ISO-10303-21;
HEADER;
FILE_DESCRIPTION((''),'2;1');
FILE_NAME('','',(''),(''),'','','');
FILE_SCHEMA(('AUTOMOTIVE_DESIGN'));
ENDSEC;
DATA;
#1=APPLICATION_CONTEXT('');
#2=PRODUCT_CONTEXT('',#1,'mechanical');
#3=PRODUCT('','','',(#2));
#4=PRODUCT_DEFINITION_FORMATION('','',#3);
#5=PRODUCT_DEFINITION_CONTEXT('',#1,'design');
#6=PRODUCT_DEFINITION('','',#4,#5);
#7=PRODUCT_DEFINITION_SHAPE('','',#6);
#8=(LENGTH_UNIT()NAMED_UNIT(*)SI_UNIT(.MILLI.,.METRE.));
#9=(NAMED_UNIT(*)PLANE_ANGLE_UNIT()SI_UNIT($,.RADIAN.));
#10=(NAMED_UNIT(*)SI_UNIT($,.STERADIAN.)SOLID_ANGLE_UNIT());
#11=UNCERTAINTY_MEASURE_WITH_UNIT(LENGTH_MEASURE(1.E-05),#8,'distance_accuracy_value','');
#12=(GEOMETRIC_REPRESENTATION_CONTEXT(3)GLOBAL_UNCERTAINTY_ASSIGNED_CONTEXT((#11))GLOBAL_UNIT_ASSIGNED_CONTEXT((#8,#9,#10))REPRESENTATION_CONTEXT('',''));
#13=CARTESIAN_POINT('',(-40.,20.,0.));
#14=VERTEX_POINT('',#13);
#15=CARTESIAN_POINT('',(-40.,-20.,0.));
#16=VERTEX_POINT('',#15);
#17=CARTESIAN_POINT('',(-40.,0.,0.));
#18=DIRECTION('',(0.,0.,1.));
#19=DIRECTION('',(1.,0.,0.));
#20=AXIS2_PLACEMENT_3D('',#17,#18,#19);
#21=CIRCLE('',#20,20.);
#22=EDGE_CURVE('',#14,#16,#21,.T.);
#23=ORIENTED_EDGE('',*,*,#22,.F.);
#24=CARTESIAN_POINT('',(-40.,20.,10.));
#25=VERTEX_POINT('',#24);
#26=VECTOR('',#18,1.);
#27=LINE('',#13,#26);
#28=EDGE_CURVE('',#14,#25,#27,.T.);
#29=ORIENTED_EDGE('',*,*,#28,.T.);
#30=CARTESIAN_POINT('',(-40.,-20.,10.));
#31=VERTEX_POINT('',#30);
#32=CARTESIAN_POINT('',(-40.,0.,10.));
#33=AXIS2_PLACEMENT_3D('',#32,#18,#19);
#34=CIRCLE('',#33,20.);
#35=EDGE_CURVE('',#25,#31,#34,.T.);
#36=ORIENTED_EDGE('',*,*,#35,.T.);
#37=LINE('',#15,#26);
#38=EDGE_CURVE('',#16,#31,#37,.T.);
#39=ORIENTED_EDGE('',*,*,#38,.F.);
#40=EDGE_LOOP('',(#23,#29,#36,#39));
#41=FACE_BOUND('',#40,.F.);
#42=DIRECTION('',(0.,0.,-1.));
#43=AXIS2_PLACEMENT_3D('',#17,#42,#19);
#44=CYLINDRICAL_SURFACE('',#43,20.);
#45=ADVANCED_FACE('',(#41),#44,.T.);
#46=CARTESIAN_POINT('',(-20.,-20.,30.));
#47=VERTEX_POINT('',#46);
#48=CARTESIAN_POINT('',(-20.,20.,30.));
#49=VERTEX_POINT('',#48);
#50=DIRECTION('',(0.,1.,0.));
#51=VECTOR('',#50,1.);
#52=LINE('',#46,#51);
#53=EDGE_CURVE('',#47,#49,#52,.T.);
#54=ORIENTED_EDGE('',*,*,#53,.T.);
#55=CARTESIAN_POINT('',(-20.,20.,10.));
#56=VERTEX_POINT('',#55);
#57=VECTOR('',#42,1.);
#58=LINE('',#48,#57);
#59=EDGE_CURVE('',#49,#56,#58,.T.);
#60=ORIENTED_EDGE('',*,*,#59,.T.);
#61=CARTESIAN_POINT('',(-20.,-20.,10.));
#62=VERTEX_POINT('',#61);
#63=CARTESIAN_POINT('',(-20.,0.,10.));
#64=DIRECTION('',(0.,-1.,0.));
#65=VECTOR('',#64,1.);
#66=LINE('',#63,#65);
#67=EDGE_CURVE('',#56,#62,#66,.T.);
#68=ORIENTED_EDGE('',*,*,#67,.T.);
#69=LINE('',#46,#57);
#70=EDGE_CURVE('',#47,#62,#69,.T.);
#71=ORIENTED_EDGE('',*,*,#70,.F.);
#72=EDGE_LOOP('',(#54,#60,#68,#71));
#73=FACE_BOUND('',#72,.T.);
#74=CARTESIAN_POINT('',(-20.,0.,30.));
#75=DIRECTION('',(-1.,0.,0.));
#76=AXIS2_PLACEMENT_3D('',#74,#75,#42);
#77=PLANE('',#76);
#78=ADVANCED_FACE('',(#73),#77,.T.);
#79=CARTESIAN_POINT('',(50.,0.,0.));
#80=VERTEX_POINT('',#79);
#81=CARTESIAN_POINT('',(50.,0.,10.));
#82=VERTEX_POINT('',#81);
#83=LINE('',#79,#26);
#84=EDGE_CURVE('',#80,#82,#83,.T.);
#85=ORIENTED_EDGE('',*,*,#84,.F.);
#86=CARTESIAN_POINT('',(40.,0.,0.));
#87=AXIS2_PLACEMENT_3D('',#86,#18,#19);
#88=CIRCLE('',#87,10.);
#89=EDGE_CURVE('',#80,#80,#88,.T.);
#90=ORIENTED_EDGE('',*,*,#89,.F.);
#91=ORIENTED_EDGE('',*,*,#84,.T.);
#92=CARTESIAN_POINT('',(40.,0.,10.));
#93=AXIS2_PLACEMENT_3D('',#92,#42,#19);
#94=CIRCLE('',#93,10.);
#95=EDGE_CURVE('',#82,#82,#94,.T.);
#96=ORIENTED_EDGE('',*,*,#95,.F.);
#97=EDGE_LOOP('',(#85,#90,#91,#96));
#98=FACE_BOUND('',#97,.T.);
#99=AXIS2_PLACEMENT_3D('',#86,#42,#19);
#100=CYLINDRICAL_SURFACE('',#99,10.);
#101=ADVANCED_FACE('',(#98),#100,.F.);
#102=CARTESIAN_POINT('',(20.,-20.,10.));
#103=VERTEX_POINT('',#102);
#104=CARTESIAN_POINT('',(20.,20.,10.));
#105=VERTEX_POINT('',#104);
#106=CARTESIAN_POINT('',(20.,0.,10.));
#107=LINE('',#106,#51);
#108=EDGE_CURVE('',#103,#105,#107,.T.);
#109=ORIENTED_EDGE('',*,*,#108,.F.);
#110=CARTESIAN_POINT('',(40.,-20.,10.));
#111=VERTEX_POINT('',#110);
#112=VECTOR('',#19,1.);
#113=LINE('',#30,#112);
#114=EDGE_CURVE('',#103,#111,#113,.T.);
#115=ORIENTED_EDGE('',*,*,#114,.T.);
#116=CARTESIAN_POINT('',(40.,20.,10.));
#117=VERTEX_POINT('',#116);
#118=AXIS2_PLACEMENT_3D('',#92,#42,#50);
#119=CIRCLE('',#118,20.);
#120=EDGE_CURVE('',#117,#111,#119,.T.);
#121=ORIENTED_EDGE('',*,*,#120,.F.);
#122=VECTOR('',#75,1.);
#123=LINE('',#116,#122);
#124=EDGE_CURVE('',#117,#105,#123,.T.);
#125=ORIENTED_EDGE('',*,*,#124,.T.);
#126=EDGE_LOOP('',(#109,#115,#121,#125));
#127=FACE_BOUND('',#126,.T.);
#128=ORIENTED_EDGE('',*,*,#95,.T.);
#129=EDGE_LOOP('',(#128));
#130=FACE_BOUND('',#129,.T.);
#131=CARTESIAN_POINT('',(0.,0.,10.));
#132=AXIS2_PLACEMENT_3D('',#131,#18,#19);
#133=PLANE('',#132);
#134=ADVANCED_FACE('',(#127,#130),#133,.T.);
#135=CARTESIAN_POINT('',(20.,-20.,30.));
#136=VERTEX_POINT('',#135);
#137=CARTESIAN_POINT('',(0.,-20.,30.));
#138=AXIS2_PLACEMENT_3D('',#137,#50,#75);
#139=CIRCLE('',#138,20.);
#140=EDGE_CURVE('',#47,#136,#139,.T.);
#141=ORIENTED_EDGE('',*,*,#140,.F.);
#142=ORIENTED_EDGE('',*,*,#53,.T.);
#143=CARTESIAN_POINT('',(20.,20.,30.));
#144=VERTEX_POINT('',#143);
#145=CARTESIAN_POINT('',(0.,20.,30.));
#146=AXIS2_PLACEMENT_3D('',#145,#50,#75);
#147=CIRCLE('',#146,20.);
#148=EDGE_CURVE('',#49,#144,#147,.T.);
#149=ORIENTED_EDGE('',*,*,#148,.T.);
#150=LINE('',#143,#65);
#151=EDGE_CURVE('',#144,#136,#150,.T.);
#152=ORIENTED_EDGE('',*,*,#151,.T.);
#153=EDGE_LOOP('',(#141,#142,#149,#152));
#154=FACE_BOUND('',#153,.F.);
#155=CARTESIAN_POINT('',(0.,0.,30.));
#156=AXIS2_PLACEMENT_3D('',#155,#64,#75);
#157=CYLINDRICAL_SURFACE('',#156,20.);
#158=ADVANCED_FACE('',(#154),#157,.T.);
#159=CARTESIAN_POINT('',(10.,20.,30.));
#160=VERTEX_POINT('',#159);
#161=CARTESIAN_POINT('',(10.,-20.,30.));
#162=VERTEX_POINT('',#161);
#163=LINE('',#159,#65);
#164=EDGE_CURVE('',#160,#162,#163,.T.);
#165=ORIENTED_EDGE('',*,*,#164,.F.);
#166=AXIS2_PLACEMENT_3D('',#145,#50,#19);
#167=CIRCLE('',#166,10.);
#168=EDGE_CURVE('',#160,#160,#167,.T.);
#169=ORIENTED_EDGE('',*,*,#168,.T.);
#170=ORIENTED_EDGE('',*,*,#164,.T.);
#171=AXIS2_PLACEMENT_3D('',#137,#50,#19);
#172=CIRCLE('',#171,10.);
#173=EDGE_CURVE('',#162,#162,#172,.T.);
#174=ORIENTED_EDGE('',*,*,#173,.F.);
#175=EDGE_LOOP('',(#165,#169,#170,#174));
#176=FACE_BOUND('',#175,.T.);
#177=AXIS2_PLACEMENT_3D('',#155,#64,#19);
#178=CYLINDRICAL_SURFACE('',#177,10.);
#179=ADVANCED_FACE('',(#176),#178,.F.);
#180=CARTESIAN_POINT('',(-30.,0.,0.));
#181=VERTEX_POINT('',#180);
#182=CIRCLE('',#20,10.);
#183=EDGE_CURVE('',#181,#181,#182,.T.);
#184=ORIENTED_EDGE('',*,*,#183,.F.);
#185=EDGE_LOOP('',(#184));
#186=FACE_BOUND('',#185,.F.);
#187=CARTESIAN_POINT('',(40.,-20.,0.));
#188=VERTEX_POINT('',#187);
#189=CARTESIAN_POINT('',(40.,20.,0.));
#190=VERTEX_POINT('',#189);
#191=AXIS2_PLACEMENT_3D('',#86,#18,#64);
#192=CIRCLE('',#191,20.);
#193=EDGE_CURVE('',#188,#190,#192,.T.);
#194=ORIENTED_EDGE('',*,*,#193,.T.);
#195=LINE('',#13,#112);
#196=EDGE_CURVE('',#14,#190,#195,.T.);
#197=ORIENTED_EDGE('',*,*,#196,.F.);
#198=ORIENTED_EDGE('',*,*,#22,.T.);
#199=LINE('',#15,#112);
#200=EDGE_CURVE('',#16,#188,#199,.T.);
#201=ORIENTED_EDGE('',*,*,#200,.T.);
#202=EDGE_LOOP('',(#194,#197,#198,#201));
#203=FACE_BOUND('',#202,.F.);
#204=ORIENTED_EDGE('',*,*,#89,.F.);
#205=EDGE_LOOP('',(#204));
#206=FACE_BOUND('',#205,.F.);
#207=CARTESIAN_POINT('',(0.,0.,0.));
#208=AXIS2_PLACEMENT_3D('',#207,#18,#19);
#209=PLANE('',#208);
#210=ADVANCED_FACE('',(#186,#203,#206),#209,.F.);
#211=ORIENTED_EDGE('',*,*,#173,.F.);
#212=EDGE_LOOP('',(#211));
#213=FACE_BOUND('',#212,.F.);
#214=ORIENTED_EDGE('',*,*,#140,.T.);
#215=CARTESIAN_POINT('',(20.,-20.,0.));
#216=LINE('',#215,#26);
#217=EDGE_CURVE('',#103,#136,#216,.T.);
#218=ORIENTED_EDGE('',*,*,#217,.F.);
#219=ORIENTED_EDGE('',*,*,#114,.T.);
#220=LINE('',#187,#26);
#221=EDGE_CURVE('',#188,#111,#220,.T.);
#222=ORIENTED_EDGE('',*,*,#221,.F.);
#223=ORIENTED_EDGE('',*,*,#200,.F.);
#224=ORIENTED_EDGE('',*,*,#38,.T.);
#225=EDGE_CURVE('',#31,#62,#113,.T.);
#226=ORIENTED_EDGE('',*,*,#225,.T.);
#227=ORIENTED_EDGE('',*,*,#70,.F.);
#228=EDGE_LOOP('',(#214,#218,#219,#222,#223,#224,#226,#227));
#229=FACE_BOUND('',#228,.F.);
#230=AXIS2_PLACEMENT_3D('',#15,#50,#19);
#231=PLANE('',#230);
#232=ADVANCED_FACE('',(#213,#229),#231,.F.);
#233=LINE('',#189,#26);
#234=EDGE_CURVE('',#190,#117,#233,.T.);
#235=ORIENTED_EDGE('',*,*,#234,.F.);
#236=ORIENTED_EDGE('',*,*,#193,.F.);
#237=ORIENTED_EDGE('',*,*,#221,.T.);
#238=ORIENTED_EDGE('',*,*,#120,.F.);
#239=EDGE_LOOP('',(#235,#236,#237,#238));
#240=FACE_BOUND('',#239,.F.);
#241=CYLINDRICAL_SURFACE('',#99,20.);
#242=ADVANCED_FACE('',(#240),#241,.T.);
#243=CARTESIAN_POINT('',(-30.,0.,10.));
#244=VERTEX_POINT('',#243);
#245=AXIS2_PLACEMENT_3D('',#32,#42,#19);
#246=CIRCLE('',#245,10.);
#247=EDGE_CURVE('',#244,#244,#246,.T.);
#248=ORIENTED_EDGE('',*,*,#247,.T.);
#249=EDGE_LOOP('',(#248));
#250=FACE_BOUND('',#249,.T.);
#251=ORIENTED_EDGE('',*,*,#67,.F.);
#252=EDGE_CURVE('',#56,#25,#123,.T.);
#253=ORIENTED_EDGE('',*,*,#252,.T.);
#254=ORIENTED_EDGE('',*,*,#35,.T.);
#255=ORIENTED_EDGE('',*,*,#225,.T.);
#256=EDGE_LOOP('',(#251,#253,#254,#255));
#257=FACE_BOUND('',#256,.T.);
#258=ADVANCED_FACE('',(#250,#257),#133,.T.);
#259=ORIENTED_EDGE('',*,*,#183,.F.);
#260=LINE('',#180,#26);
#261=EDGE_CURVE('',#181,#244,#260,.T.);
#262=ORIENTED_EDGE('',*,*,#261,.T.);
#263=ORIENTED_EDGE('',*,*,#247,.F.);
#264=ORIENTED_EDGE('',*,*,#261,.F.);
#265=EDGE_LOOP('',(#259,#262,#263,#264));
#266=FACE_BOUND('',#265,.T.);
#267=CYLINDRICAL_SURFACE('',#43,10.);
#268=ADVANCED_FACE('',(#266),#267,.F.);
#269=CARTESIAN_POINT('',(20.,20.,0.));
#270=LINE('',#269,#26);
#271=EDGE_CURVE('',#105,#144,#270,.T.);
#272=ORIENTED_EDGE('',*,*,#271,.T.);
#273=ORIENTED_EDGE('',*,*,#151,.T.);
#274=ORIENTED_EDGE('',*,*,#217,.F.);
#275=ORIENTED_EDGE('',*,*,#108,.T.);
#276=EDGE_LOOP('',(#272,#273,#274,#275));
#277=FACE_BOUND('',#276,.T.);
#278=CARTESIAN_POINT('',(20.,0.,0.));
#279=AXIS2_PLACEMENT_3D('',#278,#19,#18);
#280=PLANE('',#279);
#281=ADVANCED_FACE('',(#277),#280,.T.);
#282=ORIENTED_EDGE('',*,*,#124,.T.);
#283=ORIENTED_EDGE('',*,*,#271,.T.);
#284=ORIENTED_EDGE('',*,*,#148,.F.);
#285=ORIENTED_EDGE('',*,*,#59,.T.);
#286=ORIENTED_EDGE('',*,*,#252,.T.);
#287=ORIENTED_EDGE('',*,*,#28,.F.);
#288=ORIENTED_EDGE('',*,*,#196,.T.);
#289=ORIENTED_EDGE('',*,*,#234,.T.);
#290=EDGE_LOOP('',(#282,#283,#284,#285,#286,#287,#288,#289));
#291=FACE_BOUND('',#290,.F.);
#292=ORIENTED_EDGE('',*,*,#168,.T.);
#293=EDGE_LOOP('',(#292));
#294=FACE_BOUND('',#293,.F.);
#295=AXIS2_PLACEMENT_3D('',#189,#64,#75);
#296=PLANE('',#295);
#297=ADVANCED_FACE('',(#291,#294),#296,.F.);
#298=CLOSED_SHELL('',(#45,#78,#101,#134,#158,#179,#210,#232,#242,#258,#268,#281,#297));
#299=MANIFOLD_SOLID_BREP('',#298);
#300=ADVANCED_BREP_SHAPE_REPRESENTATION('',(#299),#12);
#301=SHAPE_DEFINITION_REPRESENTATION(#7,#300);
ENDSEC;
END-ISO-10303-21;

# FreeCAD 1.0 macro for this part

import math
import FreeCAD as App
import Part
import Sketcher
from FreeCAD import Vector

doc = App.newDocument("Part")
body = doc.addObject("PartDesign::Body", "Body")

sketch1 = body.newObject("Sketcher::SketchObject", "Sketch")
sketch1.AttachmentSupport = (doc.getObject("XY_Plane"), [""])
sketch1.MapMode = "FlatFace"
sketch1.addGeometry([
    Part.LineSegment(Vector(-40, -20, 0), Vector(40, -20, 0)),
    Part.ArcOfCircle(Part.Circle(Vector(40, 0, 0), Vector(0, 0, 1), 20), math.radians(-90), math.radians(90)),
    Part.LineSegment(Vector(40, 20, 0), Vector(-40, 20, 0)),
    Part.ArcOfCircle(Part.Circle(Vector(-40, 0, 0), Vector(0, 0, 1), 20), math.radians(90), math.radians(270)),
    Part.Circle(Vector(40, 0, 0), Vector(0, 0, 1), 10),
    Part.Circle(Vector(-40, 0, 0), Vector(0, 0, 1), 10),
], False)
sketch1.addConstraint([
    Sketcher.Constraint("Tangent", 0, 2, 1, 1),
    Sketcher.Constraint("Tangent", 1, 2, 2, 1),
    Sketcher.Constraint("Tangent", 2, 2, 3, 1),
    Sketcher.Constraint("Tangent", 3, 2, 0, 1),
    Sketcher.Constraint("Horizontal", 0),
    Sketcher.Constraint("Horizontal", 2),
    Sketcher.Constraint("Coincident", 4, 3, 1, 3),
    Sketcher.Constraint("Coincident", 5, 3, 3, 3),
    Sketcher.Constraint("Equal", 4, 5),
    Sketcher.Constraint("Symmetric", 1, 3, 3, 3, -1, 1),
    Sketcher.Constraint("Diameter", 4, 20.0),
    Sketcher.Constraint("Radius", 1, 20.0),
    Sketcher.Constraint("DistanceX", 0, 1, 0, 2, 80.0),
])
pad1 = body.newObject("PartDesign::Pad", "Pad")
pad1.Profile = sketch1
pad1.Length = 10

sketch2 = body.newObject("Sketcher::SketchObject", "Sketch001")
sketch2.AttachmentSupport = (doc.getObject("XZ_Plane"), [""])
sketch2.MapMode = "FlatFace"
sketch2.addGeometry([
    Part.LineSegment(Vector(20, 0, 0), Vector(-20, 0, 0)),
    Part.LineSegment(Vector(-20, 0, 0), Vector(-20, 30, 0)),
    Part.ArcOfCircle(Part.Circle(Vector(0, 30, 0), Vector(0, 0, 1), 20), math.radians(0), math.radians(180)),
    Part.LineSegment(Vector(20, 30, 0), Vector(20, 0, 0)),
    Part.Circle(Vector(0, 30, 0), Vector(0, 0, 1), 10),
], False)
sketch2.addConstraint([
    Sketcher.Constraint("Coincident", 0, 2, 1, 1),
    Sketcher.Constraint("Tangent", 1, 2, 2, 2),
    Sketcher.Constraint("Tangent", 2, 1, 3, 1),
    Sketcher.Constraint("Coincident", 3, 2, 0, 1),
    Sketcher.Constraint("Horizontal", 0),
    Sketcher.Constraint("Vertical", 1),
    Sketcher.Constraint("Vertical", 3),
    Sketcher.Constraint("Coincident", 4, 3, 2, 3),
    Sketcher.Constraint("Symmetric", 0, 2, 3, 2, -1, 1),
    Sketcher.Constraint("Diameter", 4, 20.0),
    Sketcher.Constraint("Radius", 2, 20.0),
    Sketcher.Constraint("DistanceY", 1, 1, 1, 2, 30.0),
])
pad2 = body.newObject("PartDesign::Pad", "Pad001")
pad2.Profile = sketch2
pad2.Length = 40
pad2.Midplane = True

doc.recompute()
